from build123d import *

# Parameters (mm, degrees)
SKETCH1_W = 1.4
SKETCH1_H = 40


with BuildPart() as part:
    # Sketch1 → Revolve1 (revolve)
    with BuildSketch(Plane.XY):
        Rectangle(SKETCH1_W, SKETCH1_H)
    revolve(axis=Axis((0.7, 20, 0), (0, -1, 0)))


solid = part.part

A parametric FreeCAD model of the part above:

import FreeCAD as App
import Part
import Sketcher


def add_polygon(sketch, points):
    """Adds a closed chain of lines whose ends are joined by coincident constraints."""
    first, n = sketch.GeometryCount, len(points)
    for a, b in zip(points, points[1:] + points[:1]):
        sketch.addGeometry(Part.LineSegment(App.Vector(*a, 0), App.Vector(*b, 0)), False)
    for i in range(n):
        sketch.addConstraint(Sketcher.Constraint("Coincident", first + i, 2, first + (i + 1) % n, 1))

doc = App.newDocument("Part")
body = doc.addObject("PartDesign::Body", "Body")

# Sketch on XY plane
sketch1 = body.newObject("Sketcher::SketchObject", "Sketch")
sketch1.AttachmentSupport = (doc.getObject("XY_Plane"), [""])
sketch1.MapMode = "FlatFace"
add_polygon(sketch1, [(-0.7, 20), (-0.7, -20), (0.7, -20), (0.7, 20)])  # lines 0-3
sketch1.addGeometry(Part.LineSegment(App.Vector(0.7, 20, 0), App.Vector(0.7, -20, 0)), True)  # axis
sketch1.addConstraint(Sketcher.Constraint("Vertical", 0))
sketch1.addConstraint(Sketcher.Constraint("Horizontal", 1))
sketch1.addConstraint(Sketcher.Constraint("Vertical", 2))
sketch1.addConstraint(Sketcher.Constraint("Horizontal", 3))
sketch1.addConstraint(Sketcher.Constraint("Vertical", 4))
sketch1.addConstraint(Sketcher.Constraint("Coincident", 4, 1, 2, 2))
sketch1.addConstraint(Sketcher.Constraint("Symmetric", 0, 2, 2, 2, -1, 1))
sketch1.addConstraint(Sketcher.Constraint("Horizontal", 0, 2, 4, 2))
sketch1.addConstraint(Sketcher.Constraint("DistanceY", 0, 2, 0, 1, 40.0))
sketch1.addConstraint(Sketcher.Constraint("DistanceX", 1, 1, 1, 2, 1.4))
revolution = body.newObject("PartDesign::Revolution", "Revolution")
revolution.Profile = sketch1
revolution.ReferenceAxis = (sketch1, ["Axis0"])
revolution.Angle = 360

doc.recompute()
